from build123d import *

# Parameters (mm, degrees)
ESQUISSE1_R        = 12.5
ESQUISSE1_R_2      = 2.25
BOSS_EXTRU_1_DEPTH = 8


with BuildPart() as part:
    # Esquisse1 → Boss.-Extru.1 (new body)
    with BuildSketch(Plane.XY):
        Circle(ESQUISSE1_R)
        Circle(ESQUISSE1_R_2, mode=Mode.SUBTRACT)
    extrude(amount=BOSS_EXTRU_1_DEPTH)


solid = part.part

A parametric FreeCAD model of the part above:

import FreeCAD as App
import Part
import Sketcher
from FreeCAD import Vector
Q = App.Units.Quantity

doc = App.newDocument("Part")
body = doc.addObject("PartDesign::Body", "Body")

sketch1 = body.newObject("Sketcher::SketchObject", "Sketch")
sketch1.AttachmentSupport = (doc.getObject("XY_Plane"), [""])
sketch1.MapMode = "FlatFace"
sketch1.addGeometry([
    Part.Circle(Vector(0, 0, 0), Vector(0, 0, 1), 12.5),
    Part.Circle(Vector(0, 0, 0), Vector(0, 0, 1), 2.25),
], False)
sketch1.addConstraint([
    Sketcher.Constraint("Coincident", 0, 3, -1, 1),
    Sketcher.Constraint("Coincident", 1, 3, -1, 1),
    Sketcher.Constraint("Diameter", 0, Q("25 mm")),
    Sketcher.Constraint("Diameter", 1, Q("4.5 mm")),
])
pad1 = body.newObject("PartDesign::Pad", "Pad")
pad1.Profile = sketch1
pad1.Length = 8

doc.recompute()
